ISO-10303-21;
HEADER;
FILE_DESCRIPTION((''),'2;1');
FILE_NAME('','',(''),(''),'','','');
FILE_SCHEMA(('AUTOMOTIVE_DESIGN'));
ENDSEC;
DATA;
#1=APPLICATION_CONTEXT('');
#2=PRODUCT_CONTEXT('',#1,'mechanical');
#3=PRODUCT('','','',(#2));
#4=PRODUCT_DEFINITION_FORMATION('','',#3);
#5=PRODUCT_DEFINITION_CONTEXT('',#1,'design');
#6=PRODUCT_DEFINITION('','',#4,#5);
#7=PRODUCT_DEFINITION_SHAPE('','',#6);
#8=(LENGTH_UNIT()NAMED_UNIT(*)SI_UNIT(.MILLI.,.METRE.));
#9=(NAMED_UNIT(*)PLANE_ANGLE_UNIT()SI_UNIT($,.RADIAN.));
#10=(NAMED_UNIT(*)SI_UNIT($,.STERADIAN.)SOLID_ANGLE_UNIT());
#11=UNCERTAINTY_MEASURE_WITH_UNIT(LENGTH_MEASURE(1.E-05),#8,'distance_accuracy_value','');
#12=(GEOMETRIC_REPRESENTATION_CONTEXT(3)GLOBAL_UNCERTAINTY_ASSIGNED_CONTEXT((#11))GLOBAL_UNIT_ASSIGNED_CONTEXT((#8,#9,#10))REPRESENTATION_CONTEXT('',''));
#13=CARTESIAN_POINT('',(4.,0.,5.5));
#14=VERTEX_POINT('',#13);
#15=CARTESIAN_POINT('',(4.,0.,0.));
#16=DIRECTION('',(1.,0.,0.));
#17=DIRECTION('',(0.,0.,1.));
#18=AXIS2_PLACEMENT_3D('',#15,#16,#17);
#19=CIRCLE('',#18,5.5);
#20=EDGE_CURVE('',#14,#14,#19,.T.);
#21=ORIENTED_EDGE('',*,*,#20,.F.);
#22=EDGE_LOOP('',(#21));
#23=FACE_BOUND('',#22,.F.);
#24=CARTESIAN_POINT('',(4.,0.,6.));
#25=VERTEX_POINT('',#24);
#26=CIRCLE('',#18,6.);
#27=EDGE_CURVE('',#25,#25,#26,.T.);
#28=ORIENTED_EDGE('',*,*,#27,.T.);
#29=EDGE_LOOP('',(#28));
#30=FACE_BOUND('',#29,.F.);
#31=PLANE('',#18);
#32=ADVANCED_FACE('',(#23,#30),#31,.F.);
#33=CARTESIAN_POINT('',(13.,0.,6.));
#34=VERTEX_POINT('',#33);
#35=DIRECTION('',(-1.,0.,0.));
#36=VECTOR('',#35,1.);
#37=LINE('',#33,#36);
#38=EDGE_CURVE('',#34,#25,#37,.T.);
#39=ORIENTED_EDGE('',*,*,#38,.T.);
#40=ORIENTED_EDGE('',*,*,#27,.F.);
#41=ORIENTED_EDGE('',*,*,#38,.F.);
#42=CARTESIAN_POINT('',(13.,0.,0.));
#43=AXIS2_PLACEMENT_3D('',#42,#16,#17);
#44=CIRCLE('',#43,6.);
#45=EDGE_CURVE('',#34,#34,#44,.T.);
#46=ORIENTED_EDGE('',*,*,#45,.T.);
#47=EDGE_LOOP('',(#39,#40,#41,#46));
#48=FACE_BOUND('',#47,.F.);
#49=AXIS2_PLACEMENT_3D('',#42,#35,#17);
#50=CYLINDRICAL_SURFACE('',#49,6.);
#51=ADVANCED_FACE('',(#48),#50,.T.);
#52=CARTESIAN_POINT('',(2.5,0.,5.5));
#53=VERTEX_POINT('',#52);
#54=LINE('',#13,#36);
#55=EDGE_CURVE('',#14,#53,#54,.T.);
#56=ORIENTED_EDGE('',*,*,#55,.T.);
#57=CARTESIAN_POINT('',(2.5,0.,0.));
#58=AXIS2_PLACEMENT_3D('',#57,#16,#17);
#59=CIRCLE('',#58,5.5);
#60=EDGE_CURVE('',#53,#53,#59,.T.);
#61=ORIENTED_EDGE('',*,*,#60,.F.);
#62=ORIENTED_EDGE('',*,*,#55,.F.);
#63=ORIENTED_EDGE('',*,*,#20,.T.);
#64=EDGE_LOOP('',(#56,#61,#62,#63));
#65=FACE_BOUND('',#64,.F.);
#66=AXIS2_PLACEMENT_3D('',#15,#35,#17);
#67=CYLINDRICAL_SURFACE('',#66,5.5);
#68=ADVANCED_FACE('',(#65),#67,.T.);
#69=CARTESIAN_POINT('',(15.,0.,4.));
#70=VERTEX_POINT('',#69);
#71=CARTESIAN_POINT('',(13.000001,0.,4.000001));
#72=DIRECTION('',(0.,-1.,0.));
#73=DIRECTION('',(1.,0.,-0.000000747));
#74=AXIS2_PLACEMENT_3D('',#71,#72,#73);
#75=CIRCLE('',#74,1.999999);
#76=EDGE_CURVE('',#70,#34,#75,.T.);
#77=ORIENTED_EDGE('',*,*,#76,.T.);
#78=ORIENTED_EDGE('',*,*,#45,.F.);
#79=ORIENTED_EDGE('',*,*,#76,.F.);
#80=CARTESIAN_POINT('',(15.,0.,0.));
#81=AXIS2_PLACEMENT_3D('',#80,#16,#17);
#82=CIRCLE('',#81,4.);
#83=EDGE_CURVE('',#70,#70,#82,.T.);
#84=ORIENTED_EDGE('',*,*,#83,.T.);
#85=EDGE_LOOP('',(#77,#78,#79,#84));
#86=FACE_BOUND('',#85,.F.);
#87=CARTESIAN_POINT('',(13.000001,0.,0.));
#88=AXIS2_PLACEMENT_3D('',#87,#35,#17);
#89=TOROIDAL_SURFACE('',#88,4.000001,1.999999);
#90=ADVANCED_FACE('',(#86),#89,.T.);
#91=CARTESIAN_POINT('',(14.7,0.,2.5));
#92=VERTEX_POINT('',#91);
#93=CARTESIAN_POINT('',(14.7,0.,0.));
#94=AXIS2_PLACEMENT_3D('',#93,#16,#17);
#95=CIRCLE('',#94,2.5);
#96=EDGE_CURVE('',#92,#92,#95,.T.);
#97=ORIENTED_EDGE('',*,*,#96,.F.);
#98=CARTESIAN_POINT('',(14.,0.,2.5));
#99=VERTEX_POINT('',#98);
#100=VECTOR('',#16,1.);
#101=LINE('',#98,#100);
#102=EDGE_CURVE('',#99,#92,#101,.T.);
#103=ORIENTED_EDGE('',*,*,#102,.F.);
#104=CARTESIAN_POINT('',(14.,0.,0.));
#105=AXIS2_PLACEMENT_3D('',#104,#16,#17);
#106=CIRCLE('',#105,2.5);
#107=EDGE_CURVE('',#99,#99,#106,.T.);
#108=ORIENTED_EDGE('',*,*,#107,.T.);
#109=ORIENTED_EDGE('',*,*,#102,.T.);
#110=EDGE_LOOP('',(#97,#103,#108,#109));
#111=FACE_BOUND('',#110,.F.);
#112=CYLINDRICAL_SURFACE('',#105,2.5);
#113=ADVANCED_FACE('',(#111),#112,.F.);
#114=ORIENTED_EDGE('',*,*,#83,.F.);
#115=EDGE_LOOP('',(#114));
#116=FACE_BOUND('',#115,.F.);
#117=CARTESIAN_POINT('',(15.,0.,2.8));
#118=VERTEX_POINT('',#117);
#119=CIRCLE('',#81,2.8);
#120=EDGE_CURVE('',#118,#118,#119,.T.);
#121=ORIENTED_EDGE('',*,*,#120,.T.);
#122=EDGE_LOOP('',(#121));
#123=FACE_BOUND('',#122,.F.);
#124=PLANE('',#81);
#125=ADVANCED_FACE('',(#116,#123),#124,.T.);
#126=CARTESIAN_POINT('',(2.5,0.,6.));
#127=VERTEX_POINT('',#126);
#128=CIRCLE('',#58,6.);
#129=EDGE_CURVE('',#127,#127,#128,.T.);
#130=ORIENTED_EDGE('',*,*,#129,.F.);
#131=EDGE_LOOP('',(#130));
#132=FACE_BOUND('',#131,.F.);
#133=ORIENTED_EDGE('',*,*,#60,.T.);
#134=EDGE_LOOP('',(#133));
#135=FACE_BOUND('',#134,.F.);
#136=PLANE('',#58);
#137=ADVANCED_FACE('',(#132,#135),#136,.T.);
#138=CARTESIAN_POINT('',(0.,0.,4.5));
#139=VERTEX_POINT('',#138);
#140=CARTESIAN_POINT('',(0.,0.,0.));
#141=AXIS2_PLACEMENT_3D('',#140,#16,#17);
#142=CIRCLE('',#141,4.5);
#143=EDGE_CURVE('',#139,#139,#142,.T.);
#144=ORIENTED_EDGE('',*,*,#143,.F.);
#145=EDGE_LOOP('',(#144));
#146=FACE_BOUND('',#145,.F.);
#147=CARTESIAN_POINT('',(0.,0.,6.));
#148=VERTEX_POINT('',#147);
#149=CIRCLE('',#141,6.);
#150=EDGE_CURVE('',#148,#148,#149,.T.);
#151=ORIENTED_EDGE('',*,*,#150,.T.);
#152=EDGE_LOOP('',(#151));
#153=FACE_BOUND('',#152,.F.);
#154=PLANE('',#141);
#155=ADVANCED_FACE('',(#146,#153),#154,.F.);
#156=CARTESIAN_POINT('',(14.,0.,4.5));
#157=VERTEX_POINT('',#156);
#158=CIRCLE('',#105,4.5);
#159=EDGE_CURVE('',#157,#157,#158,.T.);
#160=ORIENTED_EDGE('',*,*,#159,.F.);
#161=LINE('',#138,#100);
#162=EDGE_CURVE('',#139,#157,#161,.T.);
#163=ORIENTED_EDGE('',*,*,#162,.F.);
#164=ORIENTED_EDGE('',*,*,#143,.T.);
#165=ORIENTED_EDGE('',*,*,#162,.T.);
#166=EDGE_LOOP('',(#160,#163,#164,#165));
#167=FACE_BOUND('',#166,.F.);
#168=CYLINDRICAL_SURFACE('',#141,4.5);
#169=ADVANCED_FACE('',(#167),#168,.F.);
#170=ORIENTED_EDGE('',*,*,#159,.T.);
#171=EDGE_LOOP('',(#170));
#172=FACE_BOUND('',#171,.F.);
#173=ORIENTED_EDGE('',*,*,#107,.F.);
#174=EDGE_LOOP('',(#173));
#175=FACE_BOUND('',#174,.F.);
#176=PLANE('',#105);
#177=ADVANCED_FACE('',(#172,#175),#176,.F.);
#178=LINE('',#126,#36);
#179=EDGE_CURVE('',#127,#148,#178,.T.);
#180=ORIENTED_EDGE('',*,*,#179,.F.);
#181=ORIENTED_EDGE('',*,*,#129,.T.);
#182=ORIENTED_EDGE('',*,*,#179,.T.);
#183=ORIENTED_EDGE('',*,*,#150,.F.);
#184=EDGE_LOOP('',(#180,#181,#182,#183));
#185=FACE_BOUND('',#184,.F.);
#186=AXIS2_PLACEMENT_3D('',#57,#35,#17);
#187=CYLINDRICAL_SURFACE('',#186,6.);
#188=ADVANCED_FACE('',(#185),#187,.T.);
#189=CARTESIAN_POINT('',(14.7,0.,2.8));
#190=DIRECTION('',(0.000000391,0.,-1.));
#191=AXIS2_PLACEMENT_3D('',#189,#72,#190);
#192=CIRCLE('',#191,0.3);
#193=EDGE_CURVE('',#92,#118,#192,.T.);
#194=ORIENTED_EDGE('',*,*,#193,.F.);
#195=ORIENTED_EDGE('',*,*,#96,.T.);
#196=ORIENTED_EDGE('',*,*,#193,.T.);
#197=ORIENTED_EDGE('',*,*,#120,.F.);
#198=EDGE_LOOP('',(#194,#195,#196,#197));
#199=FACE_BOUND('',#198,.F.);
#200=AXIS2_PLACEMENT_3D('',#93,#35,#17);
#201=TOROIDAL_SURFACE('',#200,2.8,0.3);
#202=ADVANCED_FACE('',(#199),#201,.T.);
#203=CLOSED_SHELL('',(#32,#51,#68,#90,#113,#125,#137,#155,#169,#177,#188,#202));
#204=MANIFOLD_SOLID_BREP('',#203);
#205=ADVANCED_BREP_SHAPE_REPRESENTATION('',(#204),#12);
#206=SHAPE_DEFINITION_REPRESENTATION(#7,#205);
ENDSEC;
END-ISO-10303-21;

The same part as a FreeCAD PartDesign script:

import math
import FreeCAD as App
import Part
import Sketcher

V = App.Vector

doc = App.newDocument("Part")
body = doc.addObject("PartDesign::Body", "Body")

sketch1 = body.newObject("Sketcher::SketchObject", "Sketch")
sketch1.AttachmentSupport = (doc.getObject("XZ_Plane"), [""])
sketch1.MapMode = "FlatFace"
sketch1.addGeometry([
    Part.LineSegment(V(0, 6, 0), V(0, 4.5, 0)),
    Part.LineSegment(V(0, 4.5, 0), V(14, 4.5, 0)),
    Part.LineSegment(V(14, 4.5, 0), V(14, 2.5, 0)),
    Part.LineSegment(V(14, 2.5, 0), V(14.7, 2.5, 0)),
    Part.ArcOfCircle(Part.Circle(V(14.7, 2.8, 0), V(0, 0, 1), 0.3), math.radians(-90), math.radians(0)),
    Part.LineSegment(V(15, 2.8, 0), V(15, 4, 0)),
    Part.ArcOfCircle(Part.Circle(V(13, 4, 0), V(0, 0, 1), 2), math.radians(0), math.radians(90)),
    Part.LineSegment(V(13, 6, 0), V(4, 6, 0)),
    Part.LineSegment(V(4, 6, 0), V(4, 5.5, 0)),
    Part.LineSegment(V(4, 5.5, 0), V(2.5, 5.5, 0)),
    Part.LineSegment(V(2.5, 5.5, 0), V(2.5, 6, 0)),
    Part.LineSegment(V(2.5, 6, 0), V(0, 6, 0)),
], False)
sketch1.addConstraint([
    Sketcher.Constraint("Coincident", 0, 2, 1, 1),
    Sketcher.Constraint("Coincident", 1, 2, 2, 1),
    Sketcher.Constraint("Coincident", 2, 2, 3, 1),
    Sketcher.Constraint("Tangent", 3, 2, 4, 1),
    Sketcher.Constraint("Tangent", 4, 2, 5, 1),
    Sketcher.Constraint("Tangent", 5, 2, 6, 1),
    Sketcher.Constraint("Tangent", 6, 2, 7, 1),
    Sketcher.Constraint("Coincident", 7, 2, 8, 1),
    Sketcher.Constraint("Coincident", 8, 2, 9, 1),
    Sketcher.Constraint("Coincident", 9, 2, 10, 1),
    Sketcher.Constraint("Coincident", 10, 2, 11, 1),
    Sketcher.Constraint("Coincident", 11, 2, 0, 1),
    Sketcher.Constraint("Vertical", 0),
    Sketcher.Constraint("Horizontal", 1),
    Sketcher.Constraint("Vertical", 2),
    Sketcher.Constraint("Horizontal", 3),
    Sketcher.Constraint("Vertical", 5),
    Sketcher.Constraint("Horizontal", 7),
    Sketcher.Constraint("Vertical", 8),
    Sketcher.Constraint("Horizontal", 9),
    Sketcher.Constraint("Vertical", 10),
    Sketcher.Constraint("Horizontal", 11),
    Sketcher.Constraint("PointOnObject", 0, 2, -2),
    Sketcher.Constraint("Horizontal", 7, 2, 10, 2),
    Sketcher.Constraint("Equal", 9, 0),
    Sketcher.Constraint("Radius", 6, 1.999999),
    Sketcher.Constraint("Radius", 4, 0.3),
    Sketcher.Constraint("DistanceX", 1, 1, 1, 2, 14.0),
    Sketcher.Constraint("DistanceX", 7, 2, 7, 1, 9.0),
    Sketcher.Constraint("DistanceY", 2, 2, 2, 1, 2.0),
    Sketcher.Constraint("DistanceX", 3, 1, 3, 2, 0.7),
    Sketcher.Constraint("DistanceX", 9, 2, 9, 1, 1.5),
    Sketcher.Constraint("DistanceY", 8, 2, 8, 1, 0.5),
    Sketcher.Constraint("DistanceY", -1, 1, 6, 3, 4.000001),
])
revolution = body.newObject("PartDesign::Revolution", "Revolution")
revolution.Profile = sketch1
revolution.ReferenceAxis = (sketch1, ["H_Axis"])
revolution.Angle = 360

doc.recompute()
